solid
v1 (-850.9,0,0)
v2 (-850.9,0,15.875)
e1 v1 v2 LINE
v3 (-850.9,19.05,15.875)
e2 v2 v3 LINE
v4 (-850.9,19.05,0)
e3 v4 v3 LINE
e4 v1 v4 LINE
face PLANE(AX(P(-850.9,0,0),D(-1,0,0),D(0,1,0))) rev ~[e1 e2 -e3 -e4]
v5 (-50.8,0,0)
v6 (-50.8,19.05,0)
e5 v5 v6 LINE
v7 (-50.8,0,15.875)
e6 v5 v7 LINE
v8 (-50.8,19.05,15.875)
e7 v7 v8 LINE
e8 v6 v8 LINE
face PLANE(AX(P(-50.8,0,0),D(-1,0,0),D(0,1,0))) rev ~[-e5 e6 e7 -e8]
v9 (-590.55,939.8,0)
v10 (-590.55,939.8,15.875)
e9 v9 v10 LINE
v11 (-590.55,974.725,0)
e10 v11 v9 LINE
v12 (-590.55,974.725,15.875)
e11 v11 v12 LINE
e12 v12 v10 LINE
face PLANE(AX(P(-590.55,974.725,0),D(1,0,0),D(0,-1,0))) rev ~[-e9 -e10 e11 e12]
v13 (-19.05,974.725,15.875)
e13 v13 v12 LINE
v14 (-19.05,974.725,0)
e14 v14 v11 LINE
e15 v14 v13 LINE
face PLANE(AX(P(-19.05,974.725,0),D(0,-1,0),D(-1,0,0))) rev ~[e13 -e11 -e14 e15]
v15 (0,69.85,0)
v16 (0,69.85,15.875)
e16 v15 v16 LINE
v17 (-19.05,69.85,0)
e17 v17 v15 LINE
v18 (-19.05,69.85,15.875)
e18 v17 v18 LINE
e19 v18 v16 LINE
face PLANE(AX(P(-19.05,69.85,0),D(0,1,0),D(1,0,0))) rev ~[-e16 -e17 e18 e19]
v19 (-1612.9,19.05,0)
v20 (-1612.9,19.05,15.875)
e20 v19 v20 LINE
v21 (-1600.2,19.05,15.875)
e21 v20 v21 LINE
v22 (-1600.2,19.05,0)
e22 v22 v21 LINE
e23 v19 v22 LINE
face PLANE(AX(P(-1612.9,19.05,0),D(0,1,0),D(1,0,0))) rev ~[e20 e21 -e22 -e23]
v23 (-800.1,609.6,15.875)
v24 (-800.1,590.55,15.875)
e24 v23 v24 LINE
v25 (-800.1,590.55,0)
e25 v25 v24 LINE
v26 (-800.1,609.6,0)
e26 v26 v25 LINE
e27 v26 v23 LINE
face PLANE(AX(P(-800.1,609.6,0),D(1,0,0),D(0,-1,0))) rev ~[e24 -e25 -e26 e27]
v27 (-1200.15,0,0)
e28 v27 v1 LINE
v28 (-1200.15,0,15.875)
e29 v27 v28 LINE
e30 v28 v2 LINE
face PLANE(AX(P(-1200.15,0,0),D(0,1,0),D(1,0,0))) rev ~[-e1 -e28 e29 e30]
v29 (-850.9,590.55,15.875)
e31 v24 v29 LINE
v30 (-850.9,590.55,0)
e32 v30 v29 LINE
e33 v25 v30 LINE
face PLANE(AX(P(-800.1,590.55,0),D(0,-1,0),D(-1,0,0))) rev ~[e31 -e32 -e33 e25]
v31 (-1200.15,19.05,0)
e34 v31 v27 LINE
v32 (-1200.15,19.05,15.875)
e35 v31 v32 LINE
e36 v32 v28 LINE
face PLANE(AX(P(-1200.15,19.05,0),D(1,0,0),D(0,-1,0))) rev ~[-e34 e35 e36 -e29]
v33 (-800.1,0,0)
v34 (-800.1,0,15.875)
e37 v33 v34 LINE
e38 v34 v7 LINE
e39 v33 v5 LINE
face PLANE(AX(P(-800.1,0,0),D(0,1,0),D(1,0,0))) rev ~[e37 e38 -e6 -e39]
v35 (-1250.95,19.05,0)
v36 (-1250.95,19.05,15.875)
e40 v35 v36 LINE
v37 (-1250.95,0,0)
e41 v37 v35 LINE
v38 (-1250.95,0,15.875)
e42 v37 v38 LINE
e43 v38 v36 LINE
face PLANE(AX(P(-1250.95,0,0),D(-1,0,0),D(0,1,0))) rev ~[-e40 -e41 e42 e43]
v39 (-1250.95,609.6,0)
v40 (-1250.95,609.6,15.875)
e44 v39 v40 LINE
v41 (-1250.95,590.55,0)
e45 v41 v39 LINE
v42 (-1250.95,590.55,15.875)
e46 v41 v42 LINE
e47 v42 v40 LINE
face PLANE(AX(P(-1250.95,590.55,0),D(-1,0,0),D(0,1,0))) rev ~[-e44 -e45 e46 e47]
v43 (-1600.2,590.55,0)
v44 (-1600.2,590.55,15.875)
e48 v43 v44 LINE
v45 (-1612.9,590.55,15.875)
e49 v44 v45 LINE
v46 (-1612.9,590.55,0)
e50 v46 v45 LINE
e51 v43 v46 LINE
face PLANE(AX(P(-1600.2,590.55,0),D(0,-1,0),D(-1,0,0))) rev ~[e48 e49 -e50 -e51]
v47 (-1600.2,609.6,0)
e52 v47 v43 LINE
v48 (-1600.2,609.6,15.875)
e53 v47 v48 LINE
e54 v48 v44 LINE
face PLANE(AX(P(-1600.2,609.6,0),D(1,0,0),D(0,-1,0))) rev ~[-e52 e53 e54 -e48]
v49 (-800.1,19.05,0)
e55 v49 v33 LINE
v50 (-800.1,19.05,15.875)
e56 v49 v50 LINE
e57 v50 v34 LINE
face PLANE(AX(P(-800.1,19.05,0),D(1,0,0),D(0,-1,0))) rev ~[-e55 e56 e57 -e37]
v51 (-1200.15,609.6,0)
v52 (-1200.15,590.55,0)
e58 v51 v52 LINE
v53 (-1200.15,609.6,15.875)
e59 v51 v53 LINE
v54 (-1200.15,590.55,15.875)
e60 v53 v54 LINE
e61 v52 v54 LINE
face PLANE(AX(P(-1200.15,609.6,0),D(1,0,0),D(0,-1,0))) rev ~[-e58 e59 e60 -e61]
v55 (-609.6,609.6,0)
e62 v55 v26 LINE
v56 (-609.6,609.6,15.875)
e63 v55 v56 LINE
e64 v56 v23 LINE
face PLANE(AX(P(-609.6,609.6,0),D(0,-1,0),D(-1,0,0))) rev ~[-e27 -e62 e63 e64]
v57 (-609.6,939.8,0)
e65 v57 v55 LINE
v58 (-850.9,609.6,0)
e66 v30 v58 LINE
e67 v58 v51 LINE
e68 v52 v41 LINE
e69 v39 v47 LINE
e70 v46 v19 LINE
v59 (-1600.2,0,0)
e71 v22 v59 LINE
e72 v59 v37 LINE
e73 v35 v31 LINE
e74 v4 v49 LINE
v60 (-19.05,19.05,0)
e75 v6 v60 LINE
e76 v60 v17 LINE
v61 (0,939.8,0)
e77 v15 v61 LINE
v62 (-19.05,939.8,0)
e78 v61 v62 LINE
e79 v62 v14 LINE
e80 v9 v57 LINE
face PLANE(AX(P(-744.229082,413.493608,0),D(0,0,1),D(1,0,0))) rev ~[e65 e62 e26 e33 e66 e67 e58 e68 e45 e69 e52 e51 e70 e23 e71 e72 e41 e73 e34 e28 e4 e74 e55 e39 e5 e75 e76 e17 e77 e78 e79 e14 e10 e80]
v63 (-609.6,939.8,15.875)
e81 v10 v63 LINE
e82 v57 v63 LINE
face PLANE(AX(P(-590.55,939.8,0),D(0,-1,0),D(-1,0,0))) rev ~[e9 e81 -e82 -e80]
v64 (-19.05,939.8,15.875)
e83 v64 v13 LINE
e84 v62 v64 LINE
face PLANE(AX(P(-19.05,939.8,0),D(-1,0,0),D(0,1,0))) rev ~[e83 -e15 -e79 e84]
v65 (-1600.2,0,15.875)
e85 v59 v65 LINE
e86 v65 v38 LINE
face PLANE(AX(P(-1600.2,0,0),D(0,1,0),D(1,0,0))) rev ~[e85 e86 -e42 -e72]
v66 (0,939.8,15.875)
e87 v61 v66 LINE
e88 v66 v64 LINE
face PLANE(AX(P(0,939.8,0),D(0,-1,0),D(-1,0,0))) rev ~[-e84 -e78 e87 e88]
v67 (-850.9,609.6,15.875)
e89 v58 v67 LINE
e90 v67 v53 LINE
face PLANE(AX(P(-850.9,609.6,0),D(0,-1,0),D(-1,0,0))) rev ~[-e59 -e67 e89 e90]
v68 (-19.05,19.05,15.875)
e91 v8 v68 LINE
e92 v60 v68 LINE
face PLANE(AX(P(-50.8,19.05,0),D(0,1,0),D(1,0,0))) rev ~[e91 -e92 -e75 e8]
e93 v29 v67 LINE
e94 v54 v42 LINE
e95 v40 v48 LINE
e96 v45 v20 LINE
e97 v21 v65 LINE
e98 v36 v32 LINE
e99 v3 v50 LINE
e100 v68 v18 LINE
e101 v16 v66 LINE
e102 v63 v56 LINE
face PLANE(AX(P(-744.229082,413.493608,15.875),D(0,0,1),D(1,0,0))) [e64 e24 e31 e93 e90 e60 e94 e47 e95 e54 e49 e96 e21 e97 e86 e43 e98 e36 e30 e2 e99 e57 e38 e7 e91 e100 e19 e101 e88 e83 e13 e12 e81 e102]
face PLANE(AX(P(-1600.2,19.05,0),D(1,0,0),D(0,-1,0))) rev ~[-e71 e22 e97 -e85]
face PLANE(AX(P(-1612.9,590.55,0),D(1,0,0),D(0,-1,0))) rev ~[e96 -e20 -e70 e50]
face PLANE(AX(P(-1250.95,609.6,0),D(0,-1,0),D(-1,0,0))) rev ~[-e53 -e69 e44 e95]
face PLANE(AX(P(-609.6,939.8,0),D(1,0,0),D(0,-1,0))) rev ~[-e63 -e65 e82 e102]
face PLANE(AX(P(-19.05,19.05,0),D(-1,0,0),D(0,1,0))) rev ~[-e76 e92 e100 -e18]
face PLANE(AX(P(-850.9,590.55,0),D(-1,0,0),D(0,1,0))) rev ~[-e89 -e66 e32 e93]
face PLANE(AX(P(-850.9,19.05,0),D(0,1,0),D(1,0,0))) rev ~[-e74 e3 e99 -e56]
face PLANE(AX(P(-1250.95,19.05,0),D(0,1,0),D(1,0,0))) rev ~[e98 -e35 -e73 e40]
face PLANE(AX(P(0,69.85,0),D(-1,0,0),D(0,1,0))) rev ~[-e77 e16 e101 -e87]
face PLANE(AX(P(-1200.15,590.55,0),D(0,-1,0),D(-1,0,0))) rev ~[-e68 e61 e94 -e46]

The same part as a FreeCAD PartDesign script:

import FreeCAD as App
import Part
import Sketcher
Q = App.Units.Quantity


def add_polygon(sketch, points):
    """Adds a closed chain of lines whose ends are joined by coincident constraints."""
    first, n = sketch.GeometryCount, len(points)
    for a, b in zip(points, points[1:] + points[:1]):
        sketch.addGeometry(Part.LineSegment(App.Vector(*a, 0), App.Vector(*b, 0)), False)
    for i in range(n):
        sketch.addConstraint(Sketcher.Constraint("Coincident", first + i, 2, first + (i + 1) % n, 1))

doc = App.newDocument("Part")
body = doc.addObject("PartDesign::Body", "Body")

# Sketch on XY plane
sketch1 = body.newObject("Sketcher::SketchObject", "Sketch")
sketch1.AttachmentSupport = (doc.getObject("XY_Plane"), [""])
sketch1.MapMode = "FlatFace"
add_polygon(sketch1, [(-800, 0), (-51, 0), (-51, 19), (-19, 19), (-19, 70), (0, 70), (0, 940), (-19, 940), (-19, 975), (-591, 975), (-591, 940), (-610, 940), (-610, 610), (-800, 610), (-800, 591), (-851, 591), (-851, 610), (-1200, 610), (-1200, 591), (-1251, 591), (-1251, 610), (-1600, 610), (-1600, 591), (-1613, 591), (-1613, 19), (-1600, 19), (-1600, 0), (-1251, 0), (-1251, 19), (-1200, 19), (-1200, 0), (-851, 0), (-851, 19), (-800, 19)])  # lines 0-33
sketch1.addConstraint(Sketcher.Constraint("Horizontal", 0))
sketch1.addConstraint(Sketcher.Constraint("Vertical", 1))
sketch1.addConstraint(Sketcher.Constraint("Horizontal", 2))
sketch1.addConstraint(Sketcher.Constraint("Vertical", 3))
sketch1.addConstraint(Sketcher.Constraint("Horizontal", 4))
sketch1.addConstraint(Sketcher.Constraint("Vertical", 5))
sketch1.addConstraint(Sketcher.Constraint("Horizontal", 6))
sketch1.addConstraint(Sketcher.Constraint("Vertical", 7))
sketch1.addConstraint(Sketcher.Constraint("Horizontal", 8))
sketch1.addConstraint(Sketcher.Constraint("Vertical", 9))
sketch1.addConstraint(Sketcher.Constraint("Horizontal", 10))
sketch1.addConstraint(Sketcher.Constraint("Vertical", 11))
sketch1.addConstraint(Sketcher.Constraint("Horizontal", 12))
sketch1.addConstraint(Sketcher.Constraint("Vertical", 13))
sketch1.addConstraint(Sketcher.Constraint("Horizontal", 14))
sketch1.addConstraint(Sketcher.Constraint("Vertical", 15))
sketch1.addConstraint(Sketcher.Constraint("Horizontal", 16))
sketch1.addConstraint(Sketcher.Constraint("Vertical", 17))
sketch1.addConstraint(Sketcher.Constraint("Horizontal", 18))
sketch1.addConstraint(Sketcher.Constraint("Vertical", 19))
sketch1.addConstraint(Sketcher.Constraint("Horizontal", 20))
sketch1.addConstraint(Sketcher.Constraint("Vertical", 21))
sketch1.addConstraint(Sketcher.Constraint("Horizontal", 22))
sketch1.addConstraint(Sketcher.Constraint("Vertical", 23))
sketch1.addConstraint(Sketcher.Constraint("Horizontal", 24))
sketch1.addConstraint(Sketcher.Constraint("Vertical", 25))
sketch1.addConstraint(Sketcher.Constraint("Horizontal", 26))
sketch1.addConstraint(Sketcher.Constraint("Vertical", 27))
sketch1.addConstraint(Sketcher.Constraint("Horizontal", 28))
sketch1.addConstraint(Sketcher.Constraint("Vertical", 29))
sketch1.addConstraint(Sketcher.Constraint("Horizontal", 30))
sketch1.addConstraint(Sketcher.Constraint("Vertical", 31))
sketch1.addConstraint(Sketcher.Constraint("Horizontal", 32))
sketch1.addConstraint(Sketcher.Constraint("Vertical", 33))
sketch1.addConstraint(Sketcher.Constraint("PointOnObject", 0, 2, -1))
sketch1.addConstraint(Sketcher.Constraint("PointOnObject", 4, 2, -2))
sketch1.addConstraint(Sketcher.Constraint("PointOnObject", 25, 2, -1))
sketch1.addConstraint(Sketcher.Constraint("PointOnObject", 29, 2, -1))
sketch1.addConstraint(Sketcher.Constraint("Horizontal", 6, 2, 9, 2))
sketch1.addConstraint(Sketcher.Constraint("Horizontal", 12, 2, 15, 2))
sketch1.addConstraint(Sketcher.Constraint("Horizontal", 14, 2, 17, 2))
sketch1.addConstraint(Sketcher.Constraint("Horizontal", 16, 2, 19, 2))
sketch1.addConstraint(Sketcher.Constraint("Horizontal", 18, 2, 21, 2))
sketch1.addConstraint(Sketcher.Constraint("Horizontal", 2, 2, 23, 2))
sketch1.addConstraint(Sketcher.Constraint("Horizontal", 24, 2, 27, 2))
sketch1.addConstraint(Sketcher.Constraint("Horizontal", 28, 2, 31, 2))
sketch1.addConstraint(Sketcher.Constraint("Vertical", 3, 2, 6, 2))
sketch1.addConstraint(Sketcher.Constraint("Vertical", 21, 2, 24, 2))
sketch1.addConstraint(Sketcher.Constraint("Vertical", 19, 2, 26, 2))
sketch1.addConstraint(Sketcher.Constraint("Vertical", 17, 2, 28, 2))
sketch1.addConstraint(Sketcher.Constraint("Vertical", 15, 2, 30, 2))
sketch1.addConstraint(Sketcher.Constraint("Vertical", 13, 2, 32, 2))
sketch1.addConstraint(Sketcher.Constraint("Equal", 6, 10))
sketch1.addConstraint(Sketcher.Constraint("Equal", 14, 18))
sketch1.addConstraint(Sketcher.Constraint("Equal", 16, 20))
sketch1.addConstraint(Sketcher.Constraint("Equal", 10, 1))
sketch1.addConstraint(Sketcher.Constraint("Equal", 32, 3))
sketch1.addConstraint(Sketcher.Constraint("Equal", 1, 13))
sketch1.addConstraint(Sketcher.Constraint("Equal", 8, 23))
sketch1.addConstraint(Sketcher.Constraint("DistanceX", 14, 2, 14, 1, Q("2 in")))
sketch1.addConstraint(Sketcher.Constraint("DistanceY", 11, 2, 11, 1, Q("13 in")))
sketch1.addConstraint(Sketcher.Constraint("DistanceX", 0, 1, 0, 2, Q("29.5 in")))
sketch1.addConstraint(Sketcher.Constraint("DistanceX", 8, 2, 8, 1, Q("22.5 in")))
sketch1.addConstraint(Sketcher.Constraint("DistanceX", 12, 2, 12, 1, Q("7.5 in")))
sketch1.addConstraint(Sketcher.Constraint("DistanceX", 22, 2, 22, 1, Q("0.5 in")))
sketch1.addConstraint(Sketcher.Constraint("DistanceX", 0, 2, -1, 1, Q("2 in")))
sketch1.addConstraint(Sketcher.Constraint("DistanceX", 20, 2, -1, 1, Q("63 in")))
sketch1.addConstraint(Sketcher.Constraint("DistanceY", 7, 1, 7, 2, Q("1.375 in")))
pad1 = body.newObject("PartDesign::Pad", "Pad")
pad1.Profile = sketch1
pad1.Length = Q("0.625 in")

doc.recompute()
